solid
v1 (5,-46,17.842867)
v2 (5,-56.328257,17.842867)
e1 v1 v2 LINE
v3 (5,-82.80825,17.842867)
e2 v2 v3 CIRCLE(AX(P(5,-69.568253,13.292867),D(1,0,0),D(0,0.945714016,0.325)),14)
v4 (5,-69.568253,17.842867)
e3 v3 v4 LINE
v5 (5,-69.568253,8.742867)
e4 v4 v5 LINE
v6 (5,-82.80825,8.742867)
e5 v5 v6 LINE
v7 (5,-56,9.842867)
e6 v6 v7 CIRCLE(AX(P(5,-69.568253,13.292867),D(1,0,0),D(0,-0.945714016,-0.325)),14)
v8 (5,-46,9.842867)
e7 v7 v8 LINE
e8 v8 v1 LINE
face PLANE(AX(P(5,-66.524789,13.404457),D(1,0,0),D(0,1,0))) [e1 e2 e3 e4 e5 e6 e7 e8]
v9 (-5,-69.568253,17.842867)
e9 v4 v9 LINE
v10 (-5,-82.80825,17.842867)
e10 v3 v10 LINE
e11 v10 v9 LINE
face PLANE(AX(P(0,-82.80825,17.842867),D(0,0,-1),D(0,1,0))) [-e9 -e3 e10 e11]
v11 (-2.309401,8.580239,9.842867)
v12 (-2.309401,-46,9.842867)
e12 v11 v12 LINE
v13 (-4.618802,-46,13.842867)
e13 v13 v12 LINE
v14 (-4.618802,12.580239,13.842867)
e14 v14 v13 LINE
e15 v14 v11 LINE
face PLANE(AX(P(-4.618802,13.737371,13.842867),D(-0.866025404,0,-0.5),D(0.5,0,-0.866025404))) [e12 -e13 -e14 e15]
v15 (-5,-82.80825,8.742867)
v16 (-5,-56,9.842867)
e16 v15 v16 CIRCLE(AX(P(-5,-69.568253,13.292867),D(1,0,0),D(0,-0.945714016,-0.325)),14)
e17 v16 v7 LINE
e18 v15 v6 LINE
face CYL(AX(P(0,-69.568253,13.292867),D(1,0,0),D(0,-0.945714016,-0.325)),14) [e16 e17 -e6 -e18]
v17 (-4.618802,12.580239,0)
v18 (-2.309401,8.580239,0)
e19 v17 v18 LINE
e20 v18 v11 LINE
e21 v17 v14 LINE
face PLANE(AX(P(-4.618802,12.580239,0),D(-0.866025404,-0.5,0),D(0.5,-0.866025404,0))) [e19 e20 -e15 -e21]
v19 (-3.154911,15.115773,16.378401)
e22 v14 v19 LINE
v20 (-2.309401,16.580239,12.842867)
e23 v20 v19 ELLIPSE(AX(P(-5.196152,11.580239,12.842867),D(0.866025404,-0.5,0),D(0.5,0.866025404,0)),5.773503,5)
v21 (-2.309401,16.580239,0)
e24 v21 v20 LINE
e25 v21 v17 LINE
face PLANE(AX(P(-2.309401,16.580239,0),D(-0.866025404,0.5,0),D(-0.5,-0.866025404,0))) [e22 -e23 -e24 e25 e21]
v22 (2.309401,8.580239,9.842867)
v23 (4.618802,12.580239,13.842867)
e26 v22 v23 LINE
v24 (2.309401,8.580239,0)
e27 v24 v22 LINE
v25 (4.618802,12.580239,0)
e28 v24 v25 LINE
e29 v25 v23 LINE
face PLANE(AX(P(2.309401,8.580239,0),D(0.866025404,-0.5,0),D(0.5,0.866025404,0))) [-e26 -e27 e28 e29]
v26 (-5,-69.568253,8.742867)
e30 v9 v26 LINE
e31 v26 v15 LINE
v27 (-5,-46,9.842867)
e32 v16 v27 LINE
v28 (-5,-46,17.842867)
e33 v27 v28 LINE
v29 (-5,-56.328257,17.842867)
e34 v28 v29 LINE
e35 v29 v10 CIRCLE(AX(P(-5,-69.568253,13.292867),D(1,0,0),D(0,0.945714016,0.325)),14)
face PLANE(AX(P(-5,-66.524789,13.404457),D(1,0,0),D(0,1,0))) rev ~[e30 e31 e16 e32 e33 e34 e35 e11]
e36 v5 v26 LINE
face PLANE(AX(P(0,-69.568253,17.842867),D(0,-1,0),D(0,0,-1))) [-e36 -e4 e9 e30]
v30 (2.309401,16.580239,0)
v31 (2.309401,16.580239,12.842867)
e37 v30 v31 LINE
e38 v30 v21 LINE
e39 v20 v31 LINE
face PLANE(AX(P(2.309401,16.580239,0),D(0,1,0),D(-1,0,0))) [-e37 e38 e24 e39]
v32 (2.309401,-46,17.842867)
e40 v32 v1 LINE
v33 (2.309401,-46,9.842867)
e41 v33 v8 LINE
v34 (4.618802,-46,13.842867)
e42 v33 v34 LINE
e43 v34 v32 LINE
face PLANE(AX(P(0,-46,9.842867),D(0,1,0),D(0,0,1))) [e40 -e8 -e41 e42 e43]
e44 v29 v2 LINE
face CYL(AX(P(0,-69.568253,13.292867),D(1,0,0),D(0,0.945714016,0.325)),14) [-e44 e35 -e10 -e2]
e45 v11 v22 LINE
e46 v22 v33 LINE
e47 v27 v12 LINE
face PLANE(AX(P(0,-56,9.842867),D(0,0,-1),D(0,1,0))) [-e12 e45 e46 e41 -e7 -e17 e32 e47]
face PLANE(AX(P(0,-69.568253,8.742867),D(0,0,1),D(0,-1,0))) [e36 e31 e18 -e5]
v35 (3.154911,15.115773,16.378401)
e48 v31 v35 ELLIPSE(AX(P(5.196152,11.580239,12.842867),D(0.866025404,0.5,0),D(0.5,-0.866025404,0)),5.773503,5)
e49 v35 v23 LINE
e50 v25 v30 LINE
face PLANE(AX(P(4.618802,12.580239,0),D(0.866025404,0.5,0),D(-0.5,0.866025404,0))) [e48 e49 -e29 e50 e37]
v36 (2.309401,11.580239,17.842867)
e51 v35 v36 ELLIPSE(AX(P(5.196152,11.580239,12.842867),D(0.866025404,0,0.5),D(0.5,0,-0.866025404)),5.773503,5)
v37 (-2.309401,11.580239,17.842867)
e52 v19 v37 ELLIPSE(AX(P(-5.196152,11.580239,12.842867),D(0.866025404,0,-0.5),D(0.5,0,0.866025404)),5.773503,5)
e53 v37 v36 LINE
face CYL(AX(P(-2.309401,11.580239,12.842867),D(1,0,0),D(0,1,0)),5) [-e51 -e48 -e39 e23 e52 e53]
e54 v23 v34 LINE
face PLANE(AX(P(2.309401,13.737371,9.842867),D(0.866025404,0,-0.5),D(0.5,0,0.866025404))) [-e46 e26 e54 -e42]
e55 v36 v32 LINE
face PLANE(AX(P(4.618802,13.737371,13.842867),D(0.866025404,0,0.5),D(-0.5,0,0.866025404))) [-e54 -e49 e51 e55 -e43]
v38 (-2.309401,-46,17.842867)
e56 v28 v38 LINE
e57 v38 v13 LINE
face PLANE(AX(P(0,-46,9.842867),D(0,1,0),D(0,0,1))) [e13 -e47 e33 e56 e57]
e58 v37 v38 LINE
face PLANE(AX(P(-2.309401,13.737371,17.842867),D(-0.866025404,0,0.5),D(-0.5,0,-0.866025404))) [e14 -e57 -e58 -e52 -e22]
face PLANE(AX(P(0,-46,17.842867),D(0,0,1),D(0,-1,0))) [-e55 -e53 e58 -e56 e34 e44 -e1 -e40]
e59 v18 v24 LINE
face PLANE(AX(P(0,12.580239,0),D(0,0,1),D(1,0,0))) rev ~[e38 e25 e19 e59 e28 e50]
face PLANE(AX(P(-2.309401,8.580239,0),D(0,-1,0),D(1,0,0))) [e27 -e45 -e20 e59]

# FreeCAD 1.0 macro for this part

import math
import FreeCAD as App
import Part
import Sketcher
from FreeCAD import Vector
Q = App.Units.Quantity


def edges_at(feature, points):
    """Names of the edges that pass closest to the given points."""
    edges = feature.Shape.Edges
    near = lambda p: min(range(len(edges)), key=lambda i: edges[i].distToShape(Part.Vertex(*p))[0])
    return sorted({f"Edge{near(p) + 1}" for p in points})

doc = App.newDocument("Part")
body = doc.addObject("PartDesign::Body", "Body")

# Sketch on XY plane
sketch1 = body.newObject("Sketcher::SketchObject", "Sketch")
sketch1.AttachmentSupport = (doc.getObject("XY_Plane"), [""])
sketch1.MapMode = "FlatFace"
sketch1.addGeometry([
    Part.LineSegment(Vector(-2.309401, 16.580239, 0), Vector(-4.618802, 12.580239, 0)),  # 0
    Part.LineSegment(Vector(-4.618802, 12.580239, 0), Vector(-2.309401, 8.580239, 0)),  # 1
    Part.LineSegment(Vector(-2.309401, 8.580239, 0), Vector(2.309401, 8.580239, 0)),  # 2
    Part.LineSegment(Vector(2.309401, 8.580239, 0), Vector(4.618802, 12.580239, 0)),  # 3
    Part.LineSegment(Vector(4.618802, 12.580239, 0), Vector(2.309401, 16.580239, 0)),  # 4
    Part.LineSegment(Vector(2.309401, 16.580239, 0), Vector(-2.309401, 16.580239, 0)),  # 5
], False)
sketch1.addConstraint([
    Sketcher.Constraint("Coincident", 0, 2, 1, 1),
    Sketcher.Constraint("Coincident", 1, 2, 2, 1),
    Sketcher.Constraint("Coincident", 2, 2, 3, 1),
    Sketcher.Constraint("Coincident", 3, 2, 4, 1),
    Sketcher.Constraint("Coincident", 4, 2, 5, 1),
    Sketcher.Constraint("Coincident", 5, 2, 0, 1),
    Sketcher.Constraint("Horizontal", 2),
    Sketcher.Constraint("Horizontal", 5),
    Sketcher.Constraint("Symmetric", 0, 2, 3, 2, -2),
    Sketcher.Constraint("Parallel", 0, 3),
    Sketcher.Constraint("Parallel", 1, 4),
    Sketcher.Constraint("Vertical", 2, 2, 4, 2),
    Sketcher.Constraint("Vertical", 1, 2, 5, 2),
    Sketcher.Constraint("Angle", 0, Q("-120 deg")),
    Sketcher.Constraint("DistanceY", 1, 2, 0, 2, 4.0),
    Sketcher.Constraint("DistanceX", 1, 2, -1, 1, 2.309401),
    Sketcher.Constraint("DistanceY", -1, 1, 0, 2, 12.580239),
])

# Sketch on YZ plane
sketch2 = body.newObject("Sketcher::SketchObject", "Sketch001")
sketch2.AttachmentSupport = (doc.getObject("YZ_Plane"), [""])
sketch2.MapMode = "FlatFace"
sketch2.addGeometry([
    Part.LineSegment(Vector(13.737371, 0, 0), Vector(13.737371, 15, 0)),
    Part.LineSegment(Vector(13.737371, 15, 0), Vector(-46.262629, 15, 0)),
], False)
sketch2.addConstraint([
    Sketcher.Constraint("Coincident", 0, 2, 1, 1),
    Sketcher.Constraint("Vertical", 0),
    Sketcher.Constraint("Horizontal", 1),
    Sketcher.Constraint("PointOnObject", 0, 1, -1),
    Sketcher.Constraint("DistanceX", 1, 2, 1, 1, 60.0),
    Sketcher.Constraint("DistanceY", 0, 1, 0, 2, 15.0),
    Sketcher.Constraint("DistanceX", -1, 1, 0, 1, 13.737371),
])
doc.recompute()

additivepipe = body.newObject("PartDesign::AdditivePipe", "AdditivePipe")
additivepipe.Profile = sketch1
additivepipe.Spine = (sketch2, ["Edge1", "Edge2"])
additivepipe.Transition = "Right corner"
doc.recompute()

fillet = body.newObject("PartDesign::Fillet", "Fillet")
fillet.Base = (additivepipe, edges_at(additivepipe, [(0, 16.58, 17.843)]))
fillet.Radius = 5

# Sketch on YZ plane
sketch3 = body.newObject("Sketcher::SketchObject", "Sketch002")
sketch3.AttachmentSupport = (doc.getObject("YZ_Plane"), [""])
sketch3.MapMode = "FlatFace"
sketch3.addGeometry([
    Part.LineSegment(Vector(-69.568253, 8.742867, 0), Vector(-82.80825, 8.742867, 0)),  # 0
    Part.ArcOfCircle(Part.Circle(Vector(-69.568253, 13.292867, 0), Vector(0, 0, 1), 14), math.radians(-161.034425), math.radians(-14.266274)),  # 1
    Part.LineSegment(Vector(-56, 9.842867, 0), Vector(-46, 9.842867, 0)),  # 2
    Part.LineSegment(Vector(-46, 9.842867, 0), Vector(-46, 17.842867, 0)),  # 3
    Part.LineSegment(Vector(-46, 17.842867, 0), Vector(-56.328257, 17.842867, 0)),  # 4
    Part.ArcOfCircle(Part.Circle(Vector(-69.568253, 13.292867, 0), Vector(0, 0, 1), 14), math.radians(18.965575), math.radians(161.034425)),  # 5
    Part.LineSegment(Vector(-82.80825, 17.842867, 0), Vector(-69.568253, 17.842867, 0)),  # 6
    Part.LineSegment(Vector(-69.568253, 17.842867, 0), Vector(-69.568253, 8.742867, 0)),  # 7
], False)
sketch3.addConstraint([
    Sketcher.Constraint("Coincident", 0, 2, 1, 1),
    Sketcher.Constraint("Coincident", 1, 2, 2, 1),
    Sketcher.Constraint("Coincident", 2, 2, 3, 1),
    Sketcher.Constraint("Coincident", 3, 2, 4, 1),
    Sketcher.Constraint("Coincident", 4, 2, 5, 1),
    Sketcher.Constraint("Coincident", 5, 2, 6, 1),
    Sketcher.Constraint("Coincident", 6, 2, 7, 1),
    Sketcher.Constraint("Coincident", 7, 2, 0, 1),
    Sketcher.Constraint("Horizontal", 0),
    Sketcher.Constraint("Horizontal", 2),
    Sketcher.Constraint("Vertical", 3),
    Sketcher.Constraint("Horizontal", 4),
    Sketcher.Constraint("Horizontal", 6),
    Sketcher.Constraint("Vertical", 7),
    Sketcher.Constraint("Coincident", 5, 3, 1, 3),
    Sketcher.Constraint("Equal", 1, 5),
    Sketcher.Constraint("Horizontal", 4, 2, 5, 2),
    Sketcher.Constraint("Vertical", 0, 2, 5, 2),
    Sketcher.Constraint("Vertical", 5, 3, 6, 2),
    Sketcher.Constraint("Radius", 1, 14.0),
    Sketcher.Constraint("DistanceX", 2, 1, 2, 2, 10.0),
    Sketcher.Constraint("DistanceY", 3, 1, 3, 2, 8.0),
    Sketcher.Constraint("DistanceY", 7, 2, 7, 1, 9.1),
    Sketcher.Constraint("DistanceX", 1, 2, -1, 1, 56.0),
    Sketcher.Constraint("DistanceY", -1, 1, 1, 3, 13.292867),
])
pad1 = body.newObject("PartDesign::Pad", "Pad")
pad1.Profile = sketch3
pad1.Length = 10
pad1.Midplane = True

doc.recompute()
